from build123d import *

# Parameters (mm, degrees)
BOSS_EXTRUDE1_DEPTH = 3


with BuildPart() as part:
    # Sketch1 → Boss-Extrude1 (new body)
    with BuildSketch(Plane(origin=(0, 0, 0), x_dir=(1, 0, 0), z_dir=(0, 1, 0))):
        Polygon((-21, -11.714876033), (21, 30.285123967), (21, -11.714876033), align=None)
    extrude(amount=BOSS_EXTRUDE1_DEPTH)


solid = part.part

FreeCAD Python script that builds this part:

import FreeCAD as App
import Part
import Sketcher
Q = App.Units.Quantity


def add_polygon(sketch, points):
    """Adds a closed chain of lines whose ends are joined by coincident constraints."""
    first, n = sketch.GeometryCount, len(points)
    for a, b in zip(points, points[1:] + points[:1]):
        sketch.addGeometry(Part.LineSegment(App.Vector(*a, 0), App.Vector(*b, 0)), False)
    for i in range(n):
        sketch.addConstraint(Sketcher.Constraint("Coincident", first + i, 2, first + (i + 1) % n, 1))

doc = App.newDocument("Part")
body = doc.addObject("PartDesign::Body", "Body")

# Sketch on XZ plane
sketch1 = body.newObject("Sketcher::SketchObject", "Sketch")
sketch1.AttachmentSupport = (doc.getObject("XZ_Plane"), [""])
sketch1.MapMode = "FlatFace"
add_polygon(sketch1, [(21, -30.285124), (-21, 11.714876), (21, 11.714876)])  # lines 0-2
sketch1.addConstraint(Sketcher.Constraint("Horizontal", 1))
sketch1.addConstraint(Sketcher.Constraint("Vertical", 2))
sketch1.addConstraint(Sketcher.Constraint("Equal", 1, 2))
sketch1.addConstraint(Sketcher.Constraint("DistanceX", 1, 1, 1, 2, Q("42 mm")))
sketch1.addConstraint(Sketcher.Constraint("DistanceX", 0, 2, -1, 1, Q("21 mm")))
sketch1.addConstraint(Sketcher.Constraint("DistanceY", -1, 1, 0, 2, Q("11.714876 mm")))
pad1 = body.newObject("PartDesign::Pad", "Pad")
pad1.Profile = sketch1
pad1.Length = 3
pad1.Reversed = True

doc.recompute()
